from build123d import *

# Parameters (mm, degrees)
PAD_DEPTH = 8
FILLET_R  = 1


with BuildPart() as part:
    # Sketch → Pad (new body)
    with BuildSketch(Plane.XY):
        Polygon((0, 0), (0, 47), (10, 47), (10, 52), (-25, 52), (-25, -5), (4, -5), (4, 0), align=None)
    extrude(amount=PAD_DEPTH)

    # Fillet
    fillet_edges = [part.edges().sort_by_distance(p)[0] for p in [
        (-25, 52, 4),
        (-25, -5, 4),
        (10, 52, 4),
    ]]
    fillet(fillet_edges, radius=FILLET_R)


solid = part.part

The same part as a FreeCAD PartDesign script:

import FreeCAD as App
import Part
import Sketcher
from FreeCAD import Vector


def edges_at(feature, points):
    """Names of the edges that pass closest to the given points."""
    edges = feature.Shape.Edges
    near = lambda p: min(range(len(edges)), key=lambda i: edges[i].distToShape(Part.Vertex(*p))[0])
    return sorted({f"Edge{near(p) + 1}" for p in points})

doc = App.newDocument("Part")
body = doc.addObject("PartDesign::Body", "Body")

# Sketch on XY plane
sketch1 = body.newObject("Sketcher::SketchObject", "Sketch")
sketch1.AttachmentSupport = (doc.getObject("XY_Plane"), [""])
sketch1.MapMode = "FlatFace"
sketch1.addGeometry([
    Part.LineSegment(Vector(0, 0, 0), Vector(0, 47, 0)),  # 0
    Part.LineSegment(Vector(0, 47, 0), Vector(10, 47, 0)),  # 1
    Part.LineSegment(Vector(10, 47, 0), Vector(10, 52, 0)),  # 2
    Part.LineSegment(Vector(10, 52, 0), Vector(-25, 52, 0)),  # 3
    Part.LineSegment(Vector(-25, 52, 0), Vector(-25, -5, 0)),  # 4
    Part.LineSegment(Vector(-25, -5, 0), Vector(4, -5, 0)),  # 5
    Part.LineSegment(Vector(4, -5, 0), Vector(4, 0, 0)),  # 6
    Part.LineSegment(Vector(4, 0, 0), Vector(0, 0, 0)),  # 7
], False)
sketch1.addConstraint([
    Sketcher.Constraint("Coincident", 0, 2, 1, 1),
    Sketcher.Constraint("Coincident", 1, 2, 2, 1),
    Sketcher.Constraint("Coincident", 2, 2, 3, 1),
    Sketcher.Constraint("Coincident", 3, 2, 4, 1),
    Sketcher.Constraint("Coincident", 4, 2, 5, 1),
    Sketcher.Constraint("Coincident", 5, 2, 6, 1),
    Sketcher.Constraint("Coincident", 6, 2, 7, 1),
    Sketcher.Constraint("Coincident", 7, 2, 0, 1),
    Sketcher.Constraint("Vertical", 0),
    Sketcher.Constraint("Horizontal", 1),
    Sketcher.Constraint("Vertical", 2),
    Sketcher.Constraint("Horizontal", 3),
    Sketcher.Constraint("Vertical", 4),
    Sketcher.Constraint("Horizontal", 5),
    Sketcher.Constraint("Vertical", 6),
    Sketcher.Constraint("Horizontal", 7),
    Sketcher.Constraint("Coincident", 7, 2, -1, 1),
    Sketcher.Constraint("Equal", 2, 6),
    Sketcher.Constraint("DistanceX", 1, 1, 1, 2, 10.0),
    Sketcher.Constraint("DistanceX", 3, 2, 3, 1, 35.0),
    Sketcher.Constraint("DistanceX", 5, 1, 5, 2, 29.0),
    Sketcher.Constraint("DistanceY", 0, 1, 0, 2, 47.0),
    Sketcher.Constraint("DistanceY", 2, 1, 2, 2, 5.0),
])
pad1 = body.newObject("PartDesign::Pad", "Pad")
pad1.Profile = sketch1
pad1.Length = 8
doc.recompute()

fillet = body.newObject("PartDesign::Fillet", "Fillet")
fillet.Base = (pad1, edges_at(pad1, [(-25, 52, 4), (-25, -5, 4), (10, 52, 4)]))
fillet.Radius = 1

doc.recompute()
